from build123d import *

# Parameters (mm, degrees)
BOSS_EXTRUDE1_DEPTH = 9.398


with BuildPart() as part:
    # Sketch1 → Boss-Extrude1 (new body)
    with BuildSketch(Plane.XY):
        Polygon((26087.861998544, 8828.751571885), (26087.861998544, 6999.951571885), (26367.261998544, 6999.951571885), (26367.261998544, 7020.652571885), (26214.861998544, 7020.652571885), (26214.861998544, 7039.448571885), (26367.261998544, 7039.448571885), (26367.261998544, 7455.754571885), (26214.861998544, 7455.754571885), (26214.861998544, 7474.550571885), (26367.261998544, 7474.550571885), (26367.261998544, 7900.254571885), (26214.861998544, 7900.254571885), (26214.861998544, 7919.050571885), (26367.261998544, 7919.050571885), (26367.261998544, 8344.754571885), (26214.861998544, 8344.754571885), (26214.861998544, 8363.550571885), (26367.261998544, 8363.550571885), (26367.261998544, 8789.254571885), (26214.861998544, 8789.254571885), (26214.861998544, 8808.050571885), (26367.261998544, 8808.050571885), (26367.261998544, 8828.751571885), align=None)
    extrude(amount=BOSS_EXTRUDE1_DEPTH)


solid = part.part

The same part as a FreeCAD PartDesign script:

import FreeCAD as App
import Part
import Sketcher
Q = App.Units.Quantity


def add_polygon(sketch, points):
    """Adds a closed chain of lines whose ends are joined by coincident constraints."""
    first, n = sketch.GeometryCount, len(points)
    for a, b in zip(points, points[1:] + points[:1]):
        sketch.addGeometry(Part.LineSegment(App.Vector(*a, 0), App.Vector(*b, 0)), False)
    for i in range(n):
        sketch.addConstraint(Sketcher.Constraint("Coincident", first + i, 2, first + (i + 1) % n, 1))

doc = App.newDocument("Part")
body = doc.addObject("PartDesign::Body", "Body")

# Sketch on XY plane
sketch1 = body.newObject("Sketcher::SketchObject", "Sketch")
sketch1.AttachmentSupport = (doc.getObject("XY_Plane"), [""])
sketch1.MapMode = "FlatFace"
add_polygon(sketch1, [(26087.861999, 8828.751572), (26087.861999, 6999.951572), (26367.261999, 6999.951572), (26367.261999, 7020.652572), (26214.861999, 7020.652572), (26214.861999, 7039.448572), (26367.261999, 7039.448572), (26367.261999, 7455.754572), (26214.861999, 7455.754572), (26214.861999, 7474.550572), (26367.261999, 7474.550572), (26367.261999, 7900.254572), (26214.861999, 7900.254572), (26214.861999, 7919.050572), (26367.261999, 7919.050572), (26367.261999, 8344.754572), (26214.861999, 8344.754572), (26214.861999, 8363.550572), (26367.261999, 8363.550572), (26367.261999, 8789.254572), (26214.861999, 8789.254572), (26214.861999, 8808.050572), (26367.261999, 8808.050572), (26367.261999, 8828.751572)])  # lines 0-23
sketch1.addConstraint(Sketcher.Constraint("Vertical", 0))
sketch1.addConstraint(Sketcher.Constraint("Horizontal", 1))
sketch1.addConstraint(Sketcher.Constraint("Vertical", 2))
sketch1.addConstraint(Sketcher.Constraint("Horizontal", 3))
sketch1.addConstraint(Sketcher.Constraint("Vertical", 4))
sketch1.addConstraint(Sketcher.Constraint("Horizontal", 5))
sketch1.addConstraint(Sketcher.Constraint("Vertical", 6))
sketch1.addConstraint(Sketcher.Constraint("Horizontal", 7))
sketch1.addConstraint(Sketcher.Constraint("Vertical", 8))
sketch1.addConstraint(Sketcher.Constraint("Horizontal", 9))
sketch1.addConstraint(Sketcher.Constraint("Vertical", 10))
sketch1.addConstraint(Sketcher.Constraint("Horizontal", 11))
sketch1.addConstraint(Sketcher.Constraint("Vertical", 12))
sketch1.addConstraint(Sketcher.Constraint("Horizontal", 13))
sketch1.addConstraint(Sketcher.Constraint("Vertical", 14))
sketch1.addConstraint(Sketcher.Constraint("Horizontal", 15))
sketch1.addConstraint(Sketcher.Constraint("Vertical", 16))
sketch1.addConstraint(Sketcher.Constraint("Horizontal", 17))
sketch1.addConstraint(Sketcher.Constraint("Vertical", 18))
sketch1.addConstraint(Sketcher.Constraint("Horizontal", 19))
sketch1.addConstraint(Sketcher.Constraint("Vertical", 20))
sketch1.addConstraint(Sketcher.Constraint("Horizontal", 21))
sketch1.addConstraint(Sketcher.Constraint("Vertical", 22))
sketch1.addConstraint(Sketcher.Constraint("Horizontal", 23))
sketch1.addConstraint(Sketcher.Constraint("Vertical", 2, 2, 5, 2))
sketch1.addConstraint(Sketcher.Constraint("Vertical", 4, 2, 7, 2))
sketch1.addConstraint(Sketcher.Constraint("Vertical", 6, 2, 9, 2))
sketch1.addConstraint(Sketcher.Constraint("Vertical", 8, 2, 11, 2))
sketch1.addConstraint(Sketcher.Constraint("Vertical", 10, 2, 13, 2))
sketch1.addConstraint(Sketcher.Constraint("Vertical", 12, 2, 15, 2))
sketch1.addConstraint(Sketcher.Constraint("Vertical", 14, 2, 17, 2))
sketch1.addConstraint(Sketcher.Constraint("Vertical", 16, 2, 19, 2))
sketch1.addConstraint(Sketcher.Constraint("Vertical", 18, 2, 21, 2))
sketch1.addConstraint(Sketcher.Constraint("Equal", 4, 8))
sketch1.addConstraint(Sketcher.Constraint("Equal", 8, 12))
sketch1.addConstraint(Sketcher.Constraint("Equal", 10, 14))
sketch1.addConstraint(Sketcher.Constraint("Equal", 12, 16))
sketch1.addConstraint(Sketcher.Constraint("Equal", 14, 18))
sketch1.addConstraint(Sketcher.Constraint("Equal", 16, 20))
sketch1.addConstraint(Sketcher.Constraint("Equal", 2, 22))
sketch1.addConstraint(Sketcher.Constraint("DistanceX", 1, 1, 1, 2, Q("11 in")))
sketch1.addConstraint(Sketcher.Constraint("DistanceX", 3, 2, 3, 1, Q("6 in")))
sketch1.addConstraint(Sketcher.Constraint("DistanceY", 0, 2, 0, 1, Q("72 in")))
sketch1.addConstraint(Sketcher.Constraint("DistanceY", 4, 1, 4, 2, Q("0.74 in")))
sketch1.addConstraint(Sketcher.Constraint("DistanceY", 6, 1, 6, 2, Q("16.39 in")))
sketch1.addConstraint(Sketcher.Constraint("DistanceY", 10, 1, 10, 2, Q("16.76 in")))
sketch1.addConstraint(Sketcher.Constraint("DistanceX", -1, 1, 0, 2, Q("26087.861999 mm")))
sketch1.addConstraint(Sketcher.Constraint("DistanceY", -1, 1, 0, 2, Q("6999.951572 mm")))
pad1 = body.newObject("PartDesign::Pad", "Pad")
pad1.Profile = sketch1
pad1.Length = Q("0.37 in")

doc.recompute()
